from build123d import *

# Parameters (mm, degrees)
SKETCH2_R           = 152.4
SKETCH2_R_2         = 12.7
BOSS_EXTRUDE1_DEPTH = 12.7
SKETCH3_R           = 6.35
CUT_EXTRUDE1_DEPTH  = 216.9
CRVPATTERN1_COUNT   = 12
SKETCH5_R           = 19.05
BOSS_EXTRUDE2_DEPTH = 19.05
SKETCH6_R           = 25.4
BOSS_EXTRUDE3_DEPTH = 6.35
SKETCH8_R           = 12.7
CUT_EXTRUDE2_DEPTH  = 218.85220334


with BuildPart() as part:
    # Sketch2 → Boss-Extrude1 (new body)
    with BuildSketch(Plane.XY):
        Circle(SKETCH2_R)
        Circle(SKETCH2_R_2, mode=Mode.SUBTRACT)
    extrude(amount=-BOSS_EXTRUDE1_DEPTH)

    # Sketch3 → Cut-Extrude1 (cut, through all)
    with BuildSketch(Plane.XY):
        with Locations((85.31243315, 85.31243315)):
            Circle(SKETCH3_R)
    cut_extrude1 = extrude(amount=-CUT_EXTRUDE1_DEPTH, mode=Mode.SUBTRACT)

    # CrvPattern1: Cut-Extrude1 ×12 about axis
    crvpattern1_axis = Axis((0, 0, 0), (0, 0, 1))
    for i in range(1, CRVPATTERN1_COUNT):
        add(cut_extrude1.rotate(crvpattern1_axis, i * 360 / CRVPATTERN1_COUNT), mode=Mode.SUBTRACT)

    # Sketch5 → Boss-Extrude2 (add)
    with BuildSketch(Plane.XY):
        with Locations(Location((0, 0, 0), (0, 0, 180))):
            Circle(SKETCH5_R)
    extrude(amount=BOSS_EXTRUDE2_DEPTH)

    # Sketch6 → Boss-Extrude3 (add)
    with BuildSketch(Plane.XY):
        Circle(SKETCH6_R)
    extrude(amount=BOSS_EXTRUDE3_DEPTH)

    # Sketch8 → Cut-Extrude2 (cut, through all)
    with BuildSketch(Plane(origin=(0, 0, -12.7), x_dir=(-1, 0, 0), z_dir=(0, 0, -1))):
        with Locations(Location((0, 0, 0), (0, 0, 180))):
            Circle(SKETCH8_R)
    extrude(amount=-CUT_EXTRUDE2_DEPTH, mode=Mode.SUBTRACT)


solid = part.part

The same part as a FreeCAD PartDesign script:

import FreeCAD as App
import Part
import Sketcher
from FreeCAD import Vector
Q = App.Units.Quantity

doc = App.newDocument("Part")
body = doc.addObject("PartDesign::Body", "Body")

# Sketch on XY plane
sketch1 = body.newObject("Sketcher::SketchObject", "Sketch")
sketch1.AttachmentSupport = (doc.getObject("XY_Plane"), [""])
sketch1.MapMode = "FlatFace"
sketch1.addGeometry(Part.Circle(Vector(0, 0, 0), Vector(0, 0, 1), 152), False)
sketch1.addGeometry(Part.Circle(Vector(0, 0, 0), Vector(0, 0, 1), 13), False)
sketch1.addConstraint(Sketcher.Constraint("Coincident", 0, 3, -1, 1))
sketch1.addConstraint(Sketcher.Constraint("Coincident", 1, 3, -1, 1))
sketch1.addConstraint(Sketcher.Constraint("Diameter", 0, Q("12 in")))
sketch1.addConstraint(Sketcher.Constraint("Diameter", 1, Q("1 in")))
pad1 = body.newObject("PartDesign::Pad", "Pad")
pad1.Profile = sketch1
pad1.Length = Q("0.5 in")
pad1.Reversed = True

# Sketch on XY plane
sketch2 = body.newObject("Sketcher::SketchObject", "Sketch001")
sketch2.AttachmentSupport = (doc.getObject("XY_Plane"), [""])
sketch2.MapMode = "FlatFace"
sketch2.addGeometry(Part.Circle(Vector(85, 85, 0), Vector(0, 0, 1), 6), False)
sketch2.addConstraint(Sketcher.Constraint("Diameter", 0, Q("0.5 in")))
sketch2.addConstraint(Sketcher.Constraint("DistanceX", -1, 1, 0, 3, 85.312433))
sketch2.addConstraint(Sketcher.Constraint("DistanceY", -1, 1, 0, 3, 85.312433))
pocket1 = body.newObject("PartDesign::Pocket", "Pocket")
pocket1.Profile = sketch2
pocket1.Type = "ThroughAll"
doc.recompute()

polarpattern = body.newObject("PartDesign::PolarPattern", "PolarPattern")
polarpattern.Originals = [pocket1]
polarpattern.Axis = (doc.getObject("Z_Axis"), [""])
polarpattern.Angle = 360
polarpattern.Occurrences = 12
body.Tip = polarpattern

# Sketch on XY plane
sketch3 = body.newObject("Sketcher::SketchObject", "Sketch002")
sketch3.AttachmentSupport = (doc.getObject("XY_Plane"), [""])
sketch3.MapMode = "FlatFace"
sketch3.addGeometry(Part.Circle(Vector(0, 0, 0), Vector(0, 0, 1), 19), False)
sketch3.addConstraint(Sketcher.Constraint("Coincident", 0, 3, -1, 1))
sketch3.addConstraint(Sketcher.Constraint("Diameter", 0, Q("1.5 in")))
pad2 = body.newObject("PartDesign::Pad", "Pad001")
pad2.Profile = sketch3
pad2.Length = Q("0.75 in")

# Sketch on XY plane
sketch4 = body.newObject("Sketcher::SketchObject", "Sketch003")
sketch4.AttachmentSupport = (doc.getObject("XY_Plane"), [""])
sketch4.MapMode = "FlatFace"
sketch4.addGeometry(Part.Circle(Vector(0, 0, 0), Vector(0, 0, 1), 25), False)
sketch4.addConstraint(Sketcher.Constraint("Coincident", 0, 3, -1, 1))
sketch4.addConstraint(Sketcher.Constraint("Diameter", 0, Q("2 in")))
pad3 = body.newObject("PartDesign::Pad", "Pad002")
pad3.Profile = sketch4
pad3.Length = Q("0.25 in")

# Sketch on XY plane
sketch5 = body.newObject("Sketcher::SketchObject", "Sketch004")
sketch5.AttachmentSupport = (doc.getObject("XY_Plane"), [""])
sketch5.MapMode = "FlatFace"
sketch5.AttachmentOffset = App.Placement(Vector(0, 0, -0.5 * 25.4), App.Rotation())
sketch5.addGeometry(Part.Circle(Vector(0, 0, 0), Vector(0, 0, 1), 13), False)
sketch5.addConstraint(Sketcher.Constraint("Coincident", 0, 3, -1, 1))
sketch5.addConstraint(Sketcher.Constraint("Diameter", 0, Q("1 in")))
pocket2 = body.newObject("PartDesign::Pocket", "Pocket001")
pocket2.Profile = sketch5
pocket2.Type = "ThroughAll"
pocket2.Reversed = True

doc.recompute()
